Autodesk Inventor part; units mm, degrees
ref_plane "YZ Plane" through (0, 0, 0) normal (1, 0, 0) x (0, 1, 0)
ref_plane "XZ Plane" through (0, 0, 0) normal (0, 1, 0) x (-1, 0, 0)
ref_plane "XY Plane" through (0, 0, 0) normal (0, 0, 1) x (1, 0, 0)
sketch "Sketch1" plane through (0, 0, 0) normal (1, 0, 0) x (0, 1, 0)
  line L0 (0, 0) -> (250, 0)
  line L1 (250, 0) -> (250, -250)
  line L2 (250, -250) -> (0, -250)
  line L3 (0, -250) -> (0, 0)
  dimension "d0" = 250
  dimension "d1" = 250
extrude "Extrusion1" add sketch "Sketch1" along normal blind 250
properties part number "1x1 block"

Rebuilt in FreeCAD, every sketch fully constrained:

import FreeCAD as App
import Part
import Sketcher
from FreeCAD import Vector
Q = App.Units.Quantity

doc = App.newDocument("Part")
params = doc.addObject("Spreadsheet::Sheet", "Params")
for row, (alias, value) in enumerate([
    ("sketch1_width", "250 mm"),
    ("pad1_length", "250 mm"),
], start=1):
    params.set(f"A{row}", alias)
    params.set(f"B{row}", "=" + value)
    params.setAlias(f"B{row}", alias)

body = doc.addObject("PartDesign::Body", "Body")

# Sketch on YZ plane
sketch1 = doc.addObject("Sketcher::SketchObject", "Sketch")
body.addObject(sketch1)
sketch1.AttachmentSupport = (doc.YZ_Plane, [""])
sketch1.MapMode = "FlatFace"
sketch1.addGeometry(Part.LineSegment(Vector(250, 0, 0), Vector(0, 0, 0)), False)
sketch1.addGeometry(Part.LineSegment(Vector(0, 0, 0), Vector(0, -250, 0)), False)
sketch1.addGeometry(Part.LineSegment(Vector(0, -250, 0), Vector(250, -250, 0)), False)
sketch1.addGeometry(Part.LineSegment(Vector(250, -250, 0), Vector(250, 0, 0)), False)
sketch1.addConstraint(Sketcher.Constraint("Coincident", 0, 2, 1, 1))
sketch1.addConstraint(Sketcher.Constraint("Coincident", 1, 2, 2, 1))
sketch1.addConstraint(Sketcher.Constraint("Coincident", 2, 2, 3, 1))
sketch1.addConstraint(Sketcher.Constraint("Coincident", 3, 2, 0, 1))
sketch1.addConstraint(Sketcher.Constraint("Horizontal", 0))
sketch1.addConstraint(Sketcher.Constraint("Vertical", 1))
sketch1.addConstraint(Sketcher.Constraint("Horizontal", 2))
sketch1.addConstraint(Sketcher.Constraint("Vertical", 3))
sketch1.addConstraint(Sketcher.Constraint("Coincident", 0, 2, -1, 1))
sketch1.addConstraint(Sketcher.Constraint("Equal", 2, 1))
sketch1.addConstraint(Sketcher.Constraint("DistanceX", 0, 2, 0, 1, Q("250 mm")))
sketch1.setExpression("Constraints[10]", "Params.sketch1_width")
pad1 = doc.addObject("PartDesign::Pad", "Pad")
body.addObject(pad1)
pad1.Profile = sketch1
pad1.setExpression("Length", "Params.pad1_length")

doc.recompute()
